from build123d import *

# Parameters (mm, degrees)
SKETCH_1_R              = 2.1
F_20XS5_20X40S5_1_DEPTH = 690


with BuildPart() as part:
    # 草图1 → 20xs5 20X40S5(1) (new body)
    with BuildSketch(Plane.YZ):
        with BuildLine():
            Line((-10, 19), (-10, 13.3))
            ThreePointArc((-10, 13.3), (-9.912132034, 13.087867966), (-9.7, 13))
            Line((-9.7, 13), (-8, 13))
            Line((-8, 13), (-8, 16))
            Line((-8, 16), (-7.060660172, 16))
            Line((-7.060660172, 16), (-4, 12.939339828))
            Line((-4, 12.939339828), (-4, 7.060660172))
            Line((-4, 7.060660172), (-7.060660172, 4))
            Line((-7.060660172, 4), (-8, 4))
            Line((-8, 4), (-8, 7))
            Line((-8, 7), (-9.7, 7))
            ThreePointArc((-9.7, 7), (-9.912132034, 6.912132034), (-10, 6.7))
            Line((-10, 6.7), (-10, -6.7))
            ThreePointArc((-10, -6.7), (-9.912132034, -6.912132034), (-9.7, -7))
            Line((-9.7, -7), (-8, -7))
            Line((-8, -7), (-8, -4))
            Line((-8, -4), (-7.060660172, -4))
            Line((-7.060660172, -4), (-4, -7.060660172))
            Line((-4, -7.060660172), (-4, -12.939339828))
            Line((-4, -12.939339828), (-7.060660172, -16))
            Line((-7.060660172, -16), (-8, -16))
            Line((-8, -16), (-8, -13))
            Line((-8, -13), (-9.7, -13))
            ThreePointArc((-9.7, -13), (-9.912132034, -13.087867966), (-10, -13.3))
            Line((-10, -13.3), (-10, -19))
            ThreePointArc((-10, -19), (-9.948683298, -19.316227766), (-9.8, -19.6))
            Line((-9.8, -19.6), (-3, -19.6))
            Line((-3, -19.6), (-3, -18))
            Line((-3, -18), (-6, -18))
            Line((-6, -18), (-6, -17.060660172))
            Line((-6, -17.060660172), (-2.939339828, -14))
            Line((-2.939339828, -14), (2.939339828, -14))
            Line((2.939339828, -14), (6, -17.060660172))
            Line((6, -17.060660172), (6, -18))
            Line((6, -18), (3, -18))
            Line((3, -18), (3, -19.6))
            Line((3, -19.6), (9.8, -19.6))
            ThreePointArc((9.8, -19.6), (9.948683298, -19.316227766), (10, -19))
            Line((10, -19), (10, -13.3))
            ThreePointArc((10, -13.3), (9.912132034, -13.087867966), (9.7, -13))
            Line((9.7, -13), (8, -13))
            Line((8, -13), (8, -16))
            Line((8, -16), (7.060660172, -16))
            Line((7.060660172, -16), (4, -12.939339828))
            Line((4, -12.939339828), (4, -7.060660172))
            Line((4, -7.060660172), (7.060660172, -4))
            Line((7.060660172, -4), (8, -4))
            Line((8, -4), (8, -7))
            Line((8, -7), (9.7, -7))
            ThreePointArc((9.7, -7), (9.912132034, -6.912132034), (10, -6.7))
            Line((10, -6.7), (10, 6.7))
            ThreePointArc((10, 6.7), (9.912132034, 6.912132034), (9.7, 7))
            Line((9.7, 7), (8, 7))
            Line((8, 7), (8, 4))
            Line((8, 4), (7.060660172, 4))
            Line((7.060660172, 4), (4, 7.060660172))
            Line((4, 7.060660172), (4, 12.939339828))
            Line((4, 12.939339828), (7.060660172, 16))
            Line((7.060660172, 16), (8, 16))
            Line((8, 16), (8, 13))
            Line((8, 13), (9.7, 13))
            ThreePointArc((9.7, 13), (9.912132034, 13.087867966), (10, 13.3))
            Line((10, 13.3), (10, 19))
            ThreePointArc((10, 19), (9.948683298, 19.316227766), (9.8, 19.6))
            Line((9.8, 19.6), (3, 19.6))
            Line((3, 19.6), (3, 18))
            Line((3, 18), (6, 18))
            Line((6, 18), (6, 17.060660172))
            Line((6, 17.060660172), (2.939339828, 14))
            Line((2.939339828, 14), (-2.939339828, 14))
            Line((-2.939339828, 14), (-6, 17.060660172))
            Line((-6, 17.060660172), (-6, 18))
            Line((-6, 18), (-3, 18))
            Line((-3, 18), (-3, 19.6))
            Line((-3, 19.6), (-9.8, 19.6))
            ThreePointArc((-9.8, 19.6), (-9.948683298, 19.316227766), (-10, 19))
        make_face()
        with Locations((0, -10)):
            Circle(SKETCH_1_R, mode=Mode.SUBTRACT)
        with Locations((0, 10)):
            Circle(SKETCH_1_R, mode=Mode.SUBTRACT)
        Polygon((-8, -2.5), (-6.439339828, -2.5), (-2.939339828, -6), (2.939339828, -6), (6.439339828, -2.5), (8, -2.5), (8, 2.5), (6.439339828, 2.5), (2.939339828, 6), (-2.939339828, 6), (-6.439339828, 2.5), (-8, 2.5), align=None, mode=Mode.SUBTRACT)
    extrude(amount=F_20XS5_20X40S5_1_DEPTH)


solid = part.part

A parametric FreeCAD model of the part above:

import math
import FreeCAD as App
import Part
import Sketcher

V = App.Vector
Q = App.Units.Quantity


def add_polygon(sketch, points):
    """Adds a closed chain of lines whose ends are joined by coincident constraints."""
    first, n = sketch.GeometryCount, len(points)
    for a, b in zip(points, points[1:] + points[:1]):
        sketch.addGeometry(Part.LineSegment(App.Vector(*a, 0), App.Vector(*b, 0)), False)
    for i in range(n):
        sketch.addConstraint(Sketcher.Constraint("Coincident", first + i, 2, first + (i + 1) % n, 1))

doc = App.newDocument("Part")
body = doc.addObject("PartDesign::Body", "Body")

# Sketch on YZ plane
sketch1 = body.newObject("Sketcher::SketchObject", "Sketch")
sketch1.AttachmentSupport = (doc.getObject("YZ_Plane"), [""])
sketch1.MapMode = "FlatFace"
sketch1.addGeometry(Part.LineSegment(V(-10, 19, 0), V(-10, 13.3, 0)), False)  # 0
sketch1.addGeometry(Part.ArcOfCircle(Part.Circle(V(-9.7, 13.3, 0), V(0, 0, 1), 0.3), math.radians(-180), math.radians(-90)), False)  # 1
sketch1.addGeometry(Part.LineSegment(V(-9.7, 13, 0), V(-8, 13, 0)), False)  # 2
sketch1.addGeometry(Part.LineSegment(V(-8, 13, 0), V(-8, 16, 0)), False)  # 3
sketch1.addGeometry(Part.LineSegment(V(-8, 16, 0), V(-7.06, 16, 0)), False)  # 4
sketch1.addGeometry(Part.LineSegment(V(-7.06, 16, 0), V(-4, 12.94, 0)), False)  # 5
sketch1.addGeometry(Part.LineSegment(V(-4, 12.94, 0), V(-4, 7.06, 0)), False)  # 6
sketch1.addGeometry(Part.LineSegment(V(-4, 7.06, 0), V(-7.06, 4, 0)), False)  # 7
sketch1.addGeometry(Part.LineSegment(V(-7.06, 4, 0), V(-8, 4, 0)), False)  # 8
sketch1.addGeometry(Part.LineSegment(V(-8, 4, 0), V(-8, 7, 0)), False)  # 9
sketch1.addGeometry(Part.LineSegment(V(-8, 7, 0), V(-9.7, 7, 0)), False)  # 10
sketch1.addGeometry(Part.ArcOfCircle(Part.Circle(V(-9.7, 6.7, 0), V(0, 0, 1), 0.3), math.radians(90), math.radians(180)), False)  # 11
sketch1.addGeometry(Part.LineSegment(V(-10, 6.7, 0), V(-10, -6.7, 0)), False)  # 12
sketch1.addGeometry(Part.ArcOfCircle(Part.Circle(V(-9.7, -6.7, 0), V(0, 0, 1), 0.3), math.radians(-180), math.radians(-90)), False)  # 13
sketch1.addGeometry(Part.LineSegment(V(-9.7, -7, 0), V(-8, -7, 0)), False)  # 14
sketch1.addGeometry(Part.LineSegment(V(-8, -7, 0), V(-8, -4, 0)), False)  # 15
sketch1.addGeometry(Part.LineSegment(V(-8, -4, 0), V(-7.06, -4, 0)), False)  # 16
sketch1.addGeometry(Part.LineSegment(V(-7.06, -4, 0), V(-4, -7.06, 0)), False)  # 17
sketch1.addGeometry(Part.LineSegment(V(-4, -7.06, 0), V(-4, -12.94, 0)), False)  # 18
sketch1.addGeometry(Part.LineSegment(V(-4, -12.94, 0), V(-7.06, -16, 0)), False)  # 19
sketch1.addGeometry(Part.LineSegment(V(-7.06, -16, 0), V(-8, -16, 0)), False)  # 20
sketch1.addGeometry(Part.LineSegment(V(-8, -16, 0), V(-8, -13, 0)), False)  # 21
sketch1.addGeometry(Part.LineSegment(V(-8, -13, 0), V(-9.7, -13, 0)), False)  # 22
sketch1.addGeometry(Part.ArcOfCircle(Part.Circle(V(-9.7, -13.3, 0), V(0, 0, 1), 0.3), math.radians(90), math.radians(180)), False)  # 23
sketch1.addGeometry(Part.LineSegment(V(-10, -13.3, 0), V(-10, -19, 0)), False)  # 24
sketch1.addGeometry(Part.ArcOfCircle(Part.Circle(V(-9, -19, 0), V(0, 0, 1), 1), math.radians(180), math.radians(217)), False)  # 25
sketch1.addGeometry(Part.LineSegment(V(-9.8, -19.6, 0), V(-3, -19.6, 0)), False)  # 26
sketch1.addGeometry(Part.LineSegment(V(-3, -19.6, 0), V(-3, -18, 0)), False)  # 27
sketch1.addGeometry(Part.LineSegment(V(-3, -18, 0), V(-6, -18, 0)), False)  # 28
sketch1.addGeometry(Part.LineSegment(V(-6, -18, 0), V(-6, -17.06, 0)), False)  # 29
sketch1.addGeometry(Part.LineSegment(V(-6, -17.06, 0), V(-2.94, -14, 0)), False)  # 30
sketch1.addGeometry(Part.LineSegment(V(-2.94, -14, 0), V(2.94, -14, 0)), False)  # 31
sketch1.addGeometry(Part.LineSegment(V(2.94, -14, 0), V(6, -17.06, 0)), False)  # 32
sketch1.addGeometry(Part.LineSegment(V(6, -17.06, 0), V(6, -18, 0)), False)  # 33
sketch1.addGeometry(Part.LineSegment(V(6, -18, 0), V(3, -18, 0)), False)  # 34
sketch1.addGeometry(Part.LineSegment(V(3, -18, 0), V(3, -19.6, 0)), False)  # 35
sketch1.addGeometry(Part.LineSegment(V(3, -19.6, 0), V(9.8, -19.6, 0)), False)  # 36
sketch1.addGeometry(Part.ArcOfCircle(Part.Circle(V(9, -19, 0), V(0, 0, 1), 1), math.radians(-37), math.radians(0)), False)  # 37
sketch1.addGeometry(Part.LineSegment(V(10, -19, 0), V(10, -13.3, 0)), False)  # 38
sketch1.addGeometry(Part.ArcOfCircle(Part.Circle(V(9.7, -13.3, 0), V(0, 0, 1), 0.3), math.radians(0), math.radians(90)), False)  # 39
sketch1.addGeometry(Part.LineSegment(V(9.7, -13, 0), V(8, -13, 0)), False)  # 40
sketch1.addGeometry(Part.LineSegment(V(8, -13, 0), V(8, -16, 0)), False)  # 41
sketch1.addGeometry(Part.LineSegment(V(8, -16, 0), V(7.06, -16, 0)), False)  # 42
sketch1.addGeometry(Part.LineSegment(V(7.06, -16, 0), V(4, -12.94, 0)), False)  # 43
sketch1.addGeometry(Part.LineSegment(V(4, -12.94, 0), V(4, -7.06, 0)), False)  # 44
sketch1.addGeometry(Part.LineSegment(V(4, -7.06, 0), V(7.06, -4, 0)), False)  # 45
sketch1.addGeometry(Part.LineSegment(V(7.06, -4, 0), V(8, -4, 0)), False)  # 46
sketch1.addGeometry(Part.LineSegment(V(8, -4, 0), V(8, -7, 0)), False)  # 47
sketch1.addGeometry(Part.LineSegment(V(8, -7, 0), V(9.7, -7, 0)), False)  # 48
sketch1.addGeometry(Part.ArcOfCircle(Part.Circle(V(9.7, -6.7, 0), V(0, 0, 1), 0.3), math.radians(-90), math.radians(0)), False)  # 49
sketch1.addGeometry(Part.LineSegment(V(10, -6.7, 0), V(10, 6.7, 0)), False)  # 50
sketch1.addGeometry(Part.ArcOfCircle(Part.Circle(V(9.7, 6.7, 0), V(0, 0, 1), 0.3), math.radians(0), math.radians(90)), False)  # 51
sketch1.addGeometry(Part.LineSegment(V(9.7, 7, 0), V(8, 7, 0)), False)  # 52
sketch1.addGeometry(Part.LineSegment(V(8, 7, 0), V(8, 4, 0)), False)  # 53
sketch1.addGeometry(Part.LineSegment(V(8, 4, 0), V(7.06, 4, 0)), False)  # 54
sketch1.addGeometry(Part.LineSegment(V(7.06, 4, 0), V(4, 7.06, 0)), False)  # 55
sketch1.addGeometry(Part.LineSegment(V(4, 7.06, 0), V(4, 12.94, 0)), False)  # 56
sketch1.addGeometry(Part.LineSegment(V(4, 12.94, 0), V(7.06, 16, 0)), False)  # 57
sketch1.addGeometry(Part.LineSegment(V(7.06, 16, 0), V(8, 16, 0)), False)  # 58
sketch1.addGeometry(Part.LineSegment(V(8, 16, 0), V(8, 13, 0)), False)  # 59
sketch1.addGeometry(Part.LineSegment(V(8, 13, 0), V(9.7, 13, 0)), False)  # 60
sketch1.addGeometry(Part.ArcOfCircle(Part.Circle(V(9.7, 13.3, 0), V(0, 0, 1), 0.3), math.radians(-90), math.radians(0)), False)  # 61
sketch1.addGeometry(Part.LineSegment(V(10, 13.3, 0), V(10, 19, 0)), False)  # 62
sketch1.addGeometry(Part.ArcOfCircle(Part.Circle(V(9, 19, 0), V(0, 0, 1), 1), math.radians(0), math.radians(37)), False)  # 63
sketch1.addGeometry(Part.LineSegment(V(9.8, 19.6, 0), V(3, 19.6, 0)), False)  # 64
sketch1.addGeometry(Part.LineSegment(V(3, 19.6, 0), V(3, 18, 0)), False)  # 65
sketch1.addGeometry(Part.LineSegment(V(3, 18, 0), V(6, 18, 0)), False)  # 66
sketch1.addGeometry(Part.LineSegment(V(6, 18, 0), V(6, 17.06, 0)), False)  # 67
sketch1.addGeometry(Part.LineSegment(V(6, 17.06, 0), V(2.94, 14, 0)), False)  # 68
sketch1.addGeometry(Part.LineSegment(V(2.94, 14, 0), V(-2.94, 14, 0)), False)  # 69
sketch1.addGeometry(Part.LineSegment(V(-2.94, 14, 0), V(-6, 17.06, 0)), False)  # 70
sketch1.addGeometry(Part.LineSegment(V(-6, 17.06, 0), V(-6, 18, 0)), False)  # 71
sketch1.addGeometry(Part.LineSegment(V(-6, 18, 0), V(-3, 18, 0)), False)  # 72
sketch1.addGeometry(Part.LineSegment(V(-3, 18, 0), V(-3, 19.6, 0)), False)  # 73
sketch1.addGeometry(Part.LineSegment(V(-3, 19.6, 0), V(-9.8, 19.6, 0)), False)  # 74
sketch1.addGeometry(Part.ArcOfCircle(Part.Circle(V(-9, 19, 0), V(0, 0, 1), 1), math.radians(143), math.radians(180)), False)  # 75
sketch1.addGeometry(Part.Circle(V(0, -10, 0), V(0, 0, 1), 2.1), False)  # 76
add_polygon(sketch1, [(-6.44, -2.5), (-8, -2.5), (-8, 2.5), (-6.44, 2.5), (-2.94, 6), (2.94, 6), (6.44, 2.5), (8, 2.5), (8, -2.5), (6.44, -2.5), (2.94, -6), (-2.94, -6)])  # lines 77-88
sketch1.addGeometry(Part.Circle(V(0, 10, 0), V(0, 0, 1), 2.1), False)  # 89
sketch1.addConstraint([
    Sketcher.Constraint("Tangent", 0, 2, 1, 1),
    Sketcher.Constraint("Tangent", 1, 2, 2, 1),
    Sketcher.Constraint("Coincident", 2, 2, 3, 1),
    Sketcher.Constraint("Coincident", 3, 2, 4, 1),
    Sketcher.Constraint("Coincident", 4, 2, 5, 1),
    Sketcher.Constraint("Coincident", 5, 2, 6, 1),
    Sketcher.Constraint("Coincident", 6, 2, 7, 1),
    Sketcher.Constraint("Coincident", 7, 2, 8, 1),
    Sketcher.Constraint("Coincident", 8, 2, 9, 1),
    Sketcher.Constraint("Coincident", 9, 2, 10, 1),
    Sketcher.Constraint("Tangent", 10, 2, 11, 1),
    Sketcher.Constraint("Tangent", 11, 2, 12, 1),
    Sketcher.Constraint("Tangent", 12, 2, 13, 1),
    Sketcher.Constraint("Tangent", 13, 2, 14, 1),
    Sketcher.Constraint("Coincident", 14, 2, 15, 1),
    Sketcher.Constraint("Coincident", 15, 2, 16, 1),
    Sketcher.Constraint("Coincident", 16, 2, 17, 1),
    Sketcher.Constraint("Coincident", 17, 2, 18, 1),
    Sketcher.Constraint("Coincident", 18, 2, 19, 1),
    Sketcher.Constraint("Coincident", 19, 2, 20, 1),
    Sketcher.Constraint("Coincident", 20, 2, 21, 1),
    Sketcher.Constraint("Coincident", 21, 2, 22, 1),
    Sketcher.Constraint("Tangent", 22, 2, 23, 1),
    Sketcher.Constraint("Tangent", 23, 2, 24, 1),
    Sketcher.Constraint("Tangent", 24, 2, 25, 1),
    Sketcher.Constraint("Coincident", 25, 2, 26, 1),
    Sketcher.Constraint("Coincident", 26, 2, 27, 1),
    Sketcher.Constraint("Coincident", 27, 2, 28, 1),
    Sketcher.Constraint("Coincident", 28, 2, 29, 1),
    Sketcher.Constraint("Coincident", 29, 2, 30, 1),
    Sketcher.Constraint("Coincident", 30, 2, 31, 1),
    Sketcher.Constraint("Coincident", 31, 2, 32, 1),
    Sketcher.Constraint("Coincident", 32, 2, 33, 1),
    Sketcher.Constraint("Coincident", 33, 2, 34, 1),
    Sketcher.Constraint("Coincident", 34, 2, 35, 1),
    Sketcher.Constraint("Coincident", 35, 2, 36, 1),
    Sketcher.Constraint("Coincident", 36, 2, 37, 1),
    Sketcher.Constraint("Tangent", 37, 2, 38, 1),
    Sketcher.Constraint("Tangent", 38, 2, 39, 1),
    Sketcher.Constraint("Tangent", 39, 2, 40, 1),
    Sketcher.Constraint("Coincident", 40, 2, 41, 1),
    Sketcher.Constraint("Coincident", 41, 2, 42, 1),
    Sketcher.Constraint("Coincident", 42, 2, 43, 1),
    Sketcher.Constraint("Coincident", 43, 2, 44, 1),
    Sketcher.Constraint("Coincident", 44, 2, 45, 1),
    Sketcher.Constraint("Coincident", 45, 2, 46, 1),
    Sketcher.Constraint("Coincident", 46, 2, 47, 1),
    Sketcher.Constraint("Coincident", 47, 2, 48, 1),
    Sketcher.Constraint("Tangent", 48, 2, 49, 1),
    Sketcher.Constraint("Tangent", 49, 2, 50, 1),
    Sketcher.Constraint("Tangent", 50, 2, 51, 1),
    Sketcher.Constraint("Tangent", 51, 2, 52, 1),
    Sketcher.Constraint("Coincident", 52, 2, 53, 1),
    Sketcher.Constraint("Coincident", 53, 2, 54, 1),
    Sketcher.Constraint("Coincident", 54, 2, 55, 1),
    Sketcher.Constraint("Coincident", 55, 2, 56, 1),
    Sketcher.Constraint("Coincident", 56, 2, 57, 1),
    Sketcher.Constraint("Coincident", 57, 2, 58, 1),
    Sketcher.Constraint("Coincident", 58, 2, 59, 1),
    Sketcher.Constraint("Coincident", 59, 2, 60, 1),
    Sketcher.Constraint("Tangent", 60, 2, 61, 1),
    Sketcher.Constraint("Tangent", 61, 2, 62, 1),
    Sketcher.Constraint("Tangent", 62, 2, 63, 1),
    Sketcher.Constraint("Coincident", 63, 2, 64, 1),
    Sketcher.Constraint("Coincident", 64, 2, 65, 1),
    Sketcher.Constraint("Coincident", 65, 2, 66, 1),
    Sketcher.Constraint("Coincident", 66, 2, 67, 1),
    Sketcher.Constraint("Coincident", 67, 2, 68, 1),
    Sketcher.Constraint("Coincident", 68, 2, 69, 1),
    Sketcher.Constraint("Coincident", 69, 2, 70, 1),
    Sketcher.Constraint("Coincident", 70, 2, 71, 1),
    Sketcher.Constraint("Coincident", 71, 2, 72, 1),
    Sketcher.Constraint("Coincident", 72, 2, 73, 1),
    Sketcher.Constraint("Coincident", 73, 2, 74, 1),
    Sketcher.Constraint("Coincident", 74, 2, 75, 1),
    Sketcher.Constraint("Tangent", 75, 2, 0, 1),
    Sketcher.Constraint("Vertical", 0),
    Sketcher.Constraint("Horizontal", 2),
    Sketcher.Constraint("Vertical", 3),
    Sketcher.Constraint("Horizontal", 4),
    Sketcher.Constraint("Vertical", 6),
    Sketcher.Constraint("Horizontal", 8),
    Sketcher.Constraint("Vertical", 9),
    Sketcher.Constraint("Horizontal", 10),
    Sketcher.Constraint("Vertical", 12),
    Sketcher.Constraint("Horizontal", 14),
    Sketcher.Constraint("Vertical", 15),
    Sketcher.Constraint("Horizontal", 16),
    Sketcher.Constraint("Vertical", 18),
    Sketcher.Constraint("Horizontal", 20),
    Sketcher.Constraint("Vertical", 21),
    Sketcher.Constraint("Horizontal", 22),
    Sketcher.Constraint("Vertical", 24),
    Sketcher.Constraint("Horizontal", 26),
    Sketcher.Constraint("Vertical", 27),
    Sketcher.Constraint("Horizontal", 28),
    Sketcher.Constraint("Vertical", 29),
    Sketcher.Constraint("Horizontal", 31),
    Sketcher.Constraint("Vertical", 33),
    Sketcher.Constraint("Horizontal", 34),
    Sketcher.Constraint("Vertical", 35),
    Sketcher.Constraint("Horizontal", 36),
    Sketcher.Constraint("Vertical", 38),
    Sketcher.Constraint("Horizontal", 40),
    Sketcher.Constraint("Vertical", 41),
    Sketcher.Constraint("Horizontal", 42),
    Sketcher.Constraint("Vertical", 44),
    Sketcher.Constraint("Horizontal", 46),
    Sketcher.Constraint("Vertical", 47),
    Sketcher.Constraint("Horizontal", 48),
    Sketcher.Constraint("Vertical", 50),
    Sketcher.Constraint("Horizontal", 52),
    Sketcher.Constraint("Vertical", 53),
    Sketcher.Constraint("Horizontal", 54),
    Sketcher.Constraint("Vertical", 56),
    Sketcher.Constraint("Horizontal", 58),
    Sketcher.Constraint("Vertical", 59),
    Sketcher.Constraint("Horizontal", 60),
    Sketcher.Constraint("Vertical", 62),
    Sketcher.Constraint("Horizontal", 64),
    Sketcher.Constraint("Vertical", 65),
    Sketcher.Constraint("Horizontal", 66),
    Sketcher.Constraint("Vertical", 67),
    Sketcher.Constraint("Horizontal", 69),
    Sketcher.Constraint("Vertical", 71),
    Sketcher.Constraint("Horizontal", 72),
    Sketcher.Constraint("Vertical", 73),
    Sketcher.Constraint("Horizontal", 74),
    Sketcher.Constraint("Horizontal", 77),
    Sketcher.Constraint("Vertical", 78),
    Sketcher.Constraint("Horizontal", 79),
    Sketcher.Constraint("Horizontal", 81),
    Sketcher.Constraint("Horizontal", 83),
    Sketcher.Constraint("Vertical", 84),
    Sketcher.Constraint("Horizontal", 85),
    Sketcher.Constraint("Horizontal", 87),
    Sketcher.Constraint("Equal", 1, 11),
    Sketcher.Constraint("Equal", 11, 13),
    Sketcher.Constraint("Equal", 13, 23),
    Sketcher.Constraint("Equal", 25, 37),
    Sketcher.Constraint("Equal", 23, 39),
    Sketcher.Constraint("Equal", 39, 49),
    Sketcher.Constraint("Equal", 49, 51),
    Sketcher.Constraint("Equal", 51, 61),
    Sketcher.Constraint("Equal", 37, 63),
    Sketcher.Constraint("Equal", 63, 75),
    Sketcher.Constraint("Equal", 76, 89),
    Sketcher.Constraint("Symmetric", 1, 3, 39, 3, -1, 1),
    Sketcher.Constraint("Symmetric", 11, 3, 49, 3, -1, 1),
    Sketcher.Constraint("Symmetric", 23, 3, 61, 3, -1, 1),
    Sketcher.Constraint("Symmetric", 76, 3, 89, 3, -1, 1),
    Sketcher.Constraint("Symmetric", 3, 2, 41, 2, -1, 1),
    Sketcher.Constraint("Symmetric", 5, 2, 43, 2, -1, 1),
    Sketcher.Constraint("Symmetric", 7, 2, 45, 2, -1, 1),
    Sketcher.Constraint("Symmetric", 14, 2, 52, 2, -1, 1),
    Sketcher.Constraint("Symmetric", 16, 2, 54, 2, -1, 1),
    Sketcher.Constraint("Symmetric", 17, 2, 55, 2, -1, 1),
    Sketcher.Constraint("Symmetric", 19, 2, 57, 2, -1, 1),
    Sketcher.Constraint("Symmetric", 25, 2, 63, 2, -1, 1),
    Sketcher.Constraint("Symmetric", 27, 2, 65, 2, -1, 1),
    Sketcher.Constraint("Symmetric", 29, 2, 67, 2, -1, 1),
    Sketcher.Constraint("Symmetric", 30, 2, 68, 2, -1, 1),
    Sketcher.Constraint("Symmetric", 32, 2, 70, 2, -1, 1),
    Sketcher.Constraint("Symmetric", 34, 2, 72, 2, -1, 1),
    Sketcher.Constraint("Symmetric", 36, 2, 74, 2, -1, 1),
    Sketcher.Constraint("Symmetric", 77, 2, 83, 2, -1, 1),
    Sketcher.Constraint("Symmetric", 79, 2, 85, 2, -1, 1),
    Sketcher.Constraint("Symmetric", 80, 2, 86, 2, -1, 1),
    Sketcher.Constraint("Symmetric", 25, 3, 37, 3, -2),
    Sketcher.Constraint("Symmetric", 29, 2, 32, 2, -2),
    Sketcher.Constraint("Symmetric", 27, 2, 34, 2, -2),
    Sketcher.Constraint("Symmetric", 21, 2, 40, 2, -2),
    Sketcher.Constraint("Symmetric", 19, 2, 42, 2, -2),
    Sketcher.Constraint("Symmetric", 18, 2, 43, 2, -2),
    Sketcher.Constraint("Symmetric", 16, 2, 45, 2, -2),
    Sketcher.Constraint("Symmetric", 14, 2, 47, 2, -2),
    Sketcher.Constraint("Symmetric", 79, 2, 82, 2, -2),
    Sketcher.Constraint("PointOnObject", 76, 3, -2),
    Sketcher.Constraint("Perpendicular", 5, 7),
    Sketcher.Constraint("Perpendicular", 7, 17),
    Sketcher.Constraint("Perpendicular", 17, 19),
    Sketcher.Constraint("Parallel", 19, 30),
    Sketcher.Constraint("Perpendicular", 30, 32),
    Sketcher.Constraint("Parallel", 32, 43),
    Sketcher.Constraint("Perpendicular", 43, 45),
    Sketcher.Constraint("Perpendicular", 55, 57),
    Sketcher.Constraint("Perpendicular", 68, 70),
    Sketcher.Constraint("Perpendicular", 70, 80),
    Sketcher.Constraint("Perpendicular", 80, 82),
    Sketcher.Constraint("Perpendicular", 86, 88),
    Sketcher.Constraint("Horizontal", 26, 2, 35, 2),
    Sketcher.Constraint("Vertical", 1, 3, 11, 3),
    Sketcher.Constraint("Vertical", 4, 2, 7, 2),
    Sketcher.Constraint("Vertical", 3, 2, 8, 2),
    Sketcher.Constraint("Vertical", 9, 2, 14, 2),
    Sketcher.Constraint("Vertical", 53, 2, 58, 2),
    Sketcher.Constraint("Vertical", 21, 2, 77, 2),
    Sketcher.Constraint("Vertical", 69, 2, 80, 2),
    Sketcher.Constraint("Vertical", 80, 2, 87, 2),
    Sketcher.Constraint("Equal", 72, 3),
    Sketcher.Constraint("Equal", 87, 6),
    Sketcher.Constraint("Equal", 3, 9),
    Sketcher.Constraint("Equal", 58, 29),
    Sketcher.Constraint("Equal", 19, 30),
    Sketcher.Constraint("Radius", 25, Q("1 mm")),
    Sketcher.Constraint("Diameter", 76, Q("4.2 mm")),
    Sketcher.Constraint("Radius", 1, Q("0.3 mm")),
    Sketcher.Constraint("DistanceX", 28, 2, 28, 1, Q("3 mm")),
    Sketcher.Constraint("DistanceY", 78, 1, 78, 2, Q("5 mm")),
    Sketcher.Constraint("DistanceX", 2, 1, 2, 2, Q("1.7 mm")),
    Sketcher.Constraint("DistanceX", 26, 1, 26, 2, Q("6.8 mm")),
    Sketcher.Constraint("DistanceY", 0, 2, 0, 1, Q("5.7 mm")),
    Sketcher.Constraint("DistanceY", 12, 2, 12, 1, Q("13.4 mm")),
    Sketcher.Constraint("DistanceY", 27, 1, 27, 2, Q("1.6 mm")),
    Sketcher.Constraint("DistanceX", 25, 3, -1, 1, Q("9 mm")),
    Sketcher.Constraint("DistanceY", 25, 3, -1, 1, Q("19 mm")),
    Sketcher.Constraint("DistanceY", 76, 3, -1, 1, Q("10 mm")),
    Sketcher.Constraint("DistanceX", 5, 2, -1, 1, Q("4 mm")),
    Sketcher.Constraint("DistanceY", -1, 1, 80, 2, Q("6 mm")),
    Sketcher.Constraint("DistanceX", 4, 1, 4, 2, Q("0.93934 mm")),
])
pad1 = body.newObject("PartDesign::Pad", "Pad")
pad1.Profile = sketch1
pad1.Length = 690

doc.recompute()
